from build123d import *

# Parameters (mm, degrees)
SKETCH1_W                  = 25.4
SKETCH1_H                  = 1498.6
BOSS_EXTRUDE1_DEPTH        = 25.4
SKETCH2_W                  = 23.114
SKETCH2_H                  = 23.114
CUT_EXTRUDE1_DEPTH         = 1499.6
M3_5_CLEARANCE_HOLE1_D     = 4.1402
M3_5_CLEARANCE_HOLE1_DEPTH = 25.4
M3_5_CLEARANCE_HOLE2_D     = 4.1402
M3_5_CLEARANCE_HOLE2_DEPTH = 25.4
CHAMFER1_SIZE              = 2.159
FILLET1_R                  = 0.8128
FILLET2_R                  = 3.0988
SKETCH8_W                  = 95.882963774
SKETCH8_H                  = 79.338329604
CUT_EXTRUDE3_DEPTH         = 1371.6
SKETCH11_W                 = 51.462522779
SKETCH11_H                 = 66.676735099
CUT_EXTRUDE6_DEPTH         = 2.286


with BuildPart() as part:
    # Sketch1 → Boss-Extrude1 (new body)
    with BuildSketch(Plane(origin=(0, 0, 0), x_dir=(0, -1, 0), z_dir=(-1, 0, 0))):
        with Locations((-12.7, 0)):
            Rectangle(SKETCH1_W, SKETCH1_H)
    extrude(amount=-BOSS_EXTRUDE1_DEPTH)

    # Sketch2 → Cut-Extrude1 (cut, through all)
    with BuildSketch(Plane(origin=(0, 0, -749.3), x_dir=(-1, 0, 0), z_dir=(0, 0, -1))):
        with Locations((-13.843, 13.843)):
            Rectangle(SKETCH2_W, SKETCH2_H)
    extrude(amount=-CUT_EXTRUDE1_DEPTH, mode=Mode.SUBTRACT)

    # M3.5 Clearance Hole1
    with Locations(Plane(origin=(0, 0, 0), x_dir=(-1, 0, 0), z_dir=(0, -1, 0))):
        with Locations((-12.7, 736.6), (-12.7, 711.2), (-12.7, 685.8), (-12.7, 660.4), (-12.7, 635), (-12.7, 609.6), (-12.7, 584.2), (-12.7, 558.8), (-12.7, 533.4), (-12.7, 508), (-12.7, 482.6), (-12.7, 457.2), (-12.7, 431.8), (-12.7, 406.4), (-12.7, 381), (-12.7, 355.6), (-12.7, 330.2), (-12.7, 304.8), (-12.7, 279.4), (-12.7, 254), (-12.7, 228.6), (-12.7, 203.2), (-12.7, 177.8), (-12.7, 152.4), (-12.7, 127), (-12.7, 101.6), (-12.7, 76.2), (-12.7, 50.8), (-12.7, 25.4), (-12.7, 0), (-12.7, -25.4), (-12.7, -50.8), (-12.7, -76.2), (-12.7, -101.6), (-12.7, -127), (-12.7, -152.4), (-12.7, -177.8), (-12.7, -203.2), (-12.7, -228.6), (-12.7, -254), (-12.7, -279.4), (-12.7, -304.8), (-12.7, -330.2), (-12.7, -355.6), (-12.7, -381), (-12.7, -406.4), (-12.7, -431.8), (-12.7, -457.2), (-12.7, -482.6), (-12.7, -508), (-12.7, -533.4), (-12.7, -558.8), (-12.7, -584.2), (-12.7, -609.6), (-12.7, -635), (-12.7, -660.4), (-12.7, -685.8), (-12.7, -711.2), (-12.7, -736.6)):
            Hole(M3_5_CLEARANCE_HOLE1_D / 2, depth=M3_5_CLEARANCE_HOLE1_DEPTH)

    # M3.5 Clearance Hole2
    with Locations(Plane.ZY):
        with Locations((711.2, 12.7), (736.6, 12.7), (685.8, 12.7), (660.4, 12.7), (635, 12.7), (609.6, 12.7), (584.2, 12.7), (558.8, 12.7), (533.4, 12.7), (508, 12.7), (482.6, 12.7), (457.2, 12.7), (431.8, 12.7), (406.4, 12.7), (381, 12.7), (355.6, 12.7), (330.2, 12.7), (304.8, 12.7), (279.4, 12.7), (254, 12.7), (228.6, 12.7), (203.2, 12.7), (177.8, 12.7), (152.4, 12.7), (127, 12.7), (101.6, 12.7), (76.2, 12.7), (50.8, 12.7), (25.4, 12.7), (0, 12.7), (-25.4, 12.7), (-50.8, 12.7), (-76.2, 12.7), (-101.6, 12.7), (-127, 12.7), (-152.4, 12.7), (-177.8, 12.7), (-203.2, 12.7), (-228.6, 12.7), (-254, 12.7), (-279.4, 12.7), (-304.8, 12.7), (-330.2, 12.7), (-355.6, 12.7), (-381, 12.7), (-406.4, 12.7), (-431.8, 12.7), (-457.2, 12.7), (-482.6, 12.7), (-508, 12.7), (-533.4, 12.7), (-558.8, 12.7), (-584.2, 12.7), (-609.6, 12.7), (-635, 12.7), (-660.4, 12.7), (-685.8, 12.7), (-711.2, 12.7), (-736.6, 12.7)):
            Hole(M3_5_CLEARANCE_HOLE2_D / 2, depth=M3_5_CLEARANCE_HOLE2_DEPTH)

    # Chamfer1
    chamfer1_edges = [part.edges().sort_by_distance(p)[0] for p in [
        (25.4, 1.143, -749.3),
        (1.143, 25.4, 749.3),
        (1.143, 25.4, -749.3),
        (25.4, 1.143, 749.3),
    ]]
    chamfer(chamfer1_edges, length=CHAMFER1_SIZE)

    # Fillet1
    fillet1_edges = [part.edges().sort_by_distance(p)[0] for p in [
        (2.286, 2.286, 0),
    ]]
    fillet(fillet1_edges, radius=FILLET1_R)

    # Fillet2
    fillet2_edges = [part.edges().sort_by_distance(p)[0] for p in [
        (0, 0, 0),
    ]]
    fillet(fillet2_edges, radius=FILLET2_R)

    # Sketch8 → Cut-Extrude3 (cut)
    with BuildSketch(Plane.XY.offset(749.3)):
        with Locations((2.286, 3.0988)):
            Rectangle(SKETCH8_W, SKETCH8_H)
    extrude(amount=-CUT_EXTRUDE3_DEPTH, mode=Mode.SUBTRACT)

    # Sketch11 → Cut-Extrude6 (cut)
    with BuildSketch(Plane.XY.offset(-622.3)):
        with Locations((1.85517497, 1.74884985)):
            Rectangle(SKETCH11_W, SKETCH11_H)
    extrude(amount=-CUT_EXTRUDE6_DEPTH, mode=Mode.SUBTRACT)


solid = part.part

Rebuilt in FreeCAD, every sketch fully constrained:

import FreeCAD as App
import Part
import Sketcher

V = App.Vector
Q = App.Units.Quantity


def edges_at(feature, points):
    """Names of the edges that pass closest to the given points."""
    edges = feature.Shape.Edges
    near = lambda p: min(range(len(edges)), key=lambda i: edges[i].distToShape(Part.Vertex(*p))[0])
    return sorted({f"Edge{near(p) + 1}" for p in points})

doc = App.newDocument("Part")
body = doc.addObject("PartDesign::Body", "Body")

sketch1 = body.newObject("Sketcher::SketchObject", "Sketch")
sketch1.AttachmentSupport = (doc.getObject("YZ_Plane"), [""])
sketch1.MapMode = "FlatFace"
sketch1.addGeometry(Part.LineSegment(V(25.4, 749.3, 0), V(25.4, -749.3, 0)), False)
sketch1.addGeometry(Part.LineSegment(V(25.4, -749.3, 0), V(0, -749.3, 0)), False)
sketch1.addGeometry(Part.LineSegment(V(0, -749.3, 0), V(0, 749.3, 0)), False)
sketch1.addGeometry(Part.LineSegment(V(0, 749.3, 0), V(25.4, 749.3, 0)), False)
sketch1.addConstraint(Sketcher.Constraint("Coincident", 0, 2, 1, 1))
sketch1.addConstraint(Sketcher.Constraint("Coincident", 1, 2, 2, 1))
sketch1.addConstraint(Sketcher.Constraint("Coincident", 2, 2, 3, 1))
sketch1.addConstraint(Sketcher.Constraint("Coincident", 3, 2, 0, 1))
sketch1.addConstraint(Sketcher.Constraint("Vertical", 0))
sketch1.addConstraint(Sketcher.Constraint("Horizontal", 1))
sketch1.addConstraint(Sketcher.Constraint("Vertical", 2))
sketch1.addConstraint(Sketcher.Constraint("Horizontal", 3))
sketch1.addConstraint(Sketcher.Constraint("Symmetric", 1, 2, 2, 2, -1, 1))
sketch1.addConstraint(Sketcher.Constraint("DistanceX", 1, 2, 1, 1, Q("1 in")))
sketch1.addConstraint(Sketcher.Constraint("DistanceY", 0, 2, 0, 1, Q("59 in")))
pad1 = body.newObject("PartDesign::Pad", "Pad")
pad1.Profile = sketch1
pad1.Length = Q("1 in")

sketch2 = body.newObject("Sketcher::SketchObject", "Sketch001")
sketch2.AttachmentSupport = (doc.getObject("XY_Plane"), [""])
sketch2.MapMode = "FlatFace"
sketch2.AttachmentOffset = App.Placement(V(0, 0, -29.5 * 25.4), App.Rotation())
sketch2.addGeometry(Part.LineSegment(V(25.4, 25.4, 0), V(25.4, 2.286, 0)), False)
sketch2.addGeometry(Part.LineSegment(V(25.4, 2.286, 0), V(2.286, 2.286, 0)), False)
sketch2.addGeometry(Part.LineSegment(V(2.286, 2.286, 0), V(2.286, 25.4, 0)), False)
sketch2.addGeometry(Part.LineSegment(V(2.286, 25.4, 0), V(25.4, 25.4, 0)), False)
sketch2.addConstraint(Sketcher.Constraint("Coincident", 0, 2, 1, 1))
sketch2.addConstraint(Sketcher.Constraint("Coincident", 1, 2, 2, 1))
sketch2.addConstraint(Sketcher.Constraint("Coincident", 2, 2, 3, 1))
sketch2.addConstraint(Sketcher.Constraint("Coincident", 3, 2, 0, 1))
sketch2.addConstraint(Sketcher.Constraint("Vertical", 0))
sketch2.addConstraint(Sketcher.Constraint("Horizontal", 1))
sketch2.addConstraint(Sketcher.Constraint("Vertical", 2))
sketch2.addConstraint(Sketcher.Constraint("Horizontal", 3))
sketch2.addConstraint(Sketcher.Constraint("Equal", 3, 0))
sketch2.addConstraint(Sketcher.Constraint("DistanceX", -1, 1, 0, 2, Q("1 in")))
sketch2.addConstraint(Sketcher.Constraint("DistanceY", -1, 1, 2, 2, Q("1 in")))
sketch2.addConstraint(Sketcher.Constraint("DistanceX", 1, 2, 1, 1, Q("0.91 in")))
pocket1 = body.newObject("PartDesign::Pocket", "Pocket")
pocket1.Profile = sketch2
pocket1.Type = "ThroughAll"
pocket1.Reversed = True

sketch3 = body.newObject("Sketcher::SketchObject", "Sketch002")
sketch3.AttachmentSupport = (doc.getObject("XZ_Plane"), [""])
sketch3.MapMode = "FlatFace"
sketch3.addGeometry(Part.Circle(V(12.7, -736.6, 0), V(0, 0, 1), 2.0701), False)
sketch3.addGeometry(Part.Circle(V(12.7, -711.2, 0), V(0, 0, 1), 2.0701), False)
sketch3.addGeometry(Part.Circle(V(12.7, -685.8, 0), V(0, 0, 1), 2.0701), False)
sketch3.addGeometry(Part.Circle(V(12.7, -660.4, 0), V(0, 0, 1), 2.0701), False)
sketch3.addGeometry(Part.Circle(V(12.7, -635, 0), V(0, 0, 1), 2.0701), False)
sketch3.addGeometry(Part.Circle(V(12.7, -609.6, 0), V(0, 0, 1), 2.0701), False)
sketch3.addGeometry(Part.Circle(V(12.7, -584.2, 0), V(0, 0, 1), 2.0701), False)
sketch3.addGeometry(Part.Circle(V(12.7, -558.8, 0), V(0, 0, 1), 2.0701), False)
sketch3.addGeometry(Part.Circle(V(12.7, -533.4, 0), V(0, 0, 1), 2.0701), False)
sketch3.addGeometry(Part.Circle(V(12.7, -508, 0), V(0, 0, 1), 2.0701), False)
sketch3.addGeometry(Part.Circle(V(12.7, -482.6, 0), V(0, 0, 1), 2.0701), False)
sketch3.addGeometry(Part.Circle(V(12.7, -457.2, 0), V(0, 0, 1), 2.0701), False)
sketch3.addGeometry(Part.Circle(V(12.7, -431.8, 0), V(0, 0, 1), 2.0701), False)
sketch3.addGeometry(Part.Circle(V(12.7, -406.4, 0), V(0, 0, 1), 2.0701), False)
sketch3.addGeometry(Part.Circle(V(12.7, -381, 0), V(0, 0, 1), 2.0701), False)
sketch3.addGeometry(Part.Circle(V(12.7, -355.6, 0), V(0, 0, 1), 2.0701), False)
sketch3.addGeometry(Part.Circle(V(12.7, -330.2, 0), V(0, 0, 1), 2.0701), False)
sketch3.addGeometry(Part.Circle(V(12.7, -304.8, 0), V(0, 0, 1), 2.0701), False)
sketch3.addGeometry(Part.Circle(V(12.7, -279.4, 0), V(0, 0, 1), 2.0701), False)
sketch3.addGeometry(Part.Circle(V(12.7, -254, 0), V(0, 0, 1), 2.0701), False)
sketch3.addGeometry(Part.Circle(V(12.7, -228.6, 0), V(0, 0, 1), 2.0701), False)
sketch3.addGeometry(Part.Circle(V(12.7, -203.2, 0), V(0, 0, 1), 2.0701), False)
sketch3.addGeometry(Part.Circle(V(12.7, -177.8, 0), V(0, 0, 1), 2.0701), False)
sketch3.addGeometry(Part.Circle(V(12.7, -152.4, 0), V(0, 0, 1), 2.0701), False)
sketch3.addGeometry(Part.Circle(V(12.7, -127, 0), V(0, 0, 1), 2.0701), False)
sketch3.addGeometry(Part.Circle(V(12.7, -101.6, 0), V(0, 0, 1), 2.0701), False)
sketch3.addGeometry(Part.Circle(V(12.7, -76.2, 0), V(0, 0, 1), 2.0701), False)
sketch3.addGeometry(Part.Circle(V(12.7, -50.8, 0), V(0, 0, 1), 2.0701), False)
sketch3.addGeometry(Part.Circle(V(12.7, -25.4, 0), V(0, 0, 1), 2.0701), False)
sketch3.addGeometry(Part.Circle(V(12.7, 0, 0), V(0, 0, 1), 2.0701), False)
sketch3.addGeometry(Part.Circle(V(12.7, 25.4, 0), V(0, 0, 1), 2.0701), False)
sketch3.addGeometry(Part.Circle(V(12.7, 50.8, 0), V(0, 0, 1), 2.0701), False)
sketch3.addGeometry(Part.Circle(V(12.7, 76.2, 0), V(0, 0, 1), 2.0701), False)
sketch3.addGeometry(Part.Circle(V(12.7, 101.6, 0), V(0, 0, 1), 2.0701), False)
sketch3.addGeometry(Part.Circle(V(12.7, 127, 0), V(0, 0, 1), 2.0701), False)
sketch3.addGeometry(Part.Circle(V(12.7, 152.4, 0), V(0, 0, 1), 2.0701), False)
sketch3.addGeometry(Part.Circle(V(12.7, 177.8, 0), V(0, 0, 1), 2.0701), False)
sketch3.addGeometry(Part.Circle(V(12.7, 203.2, 0), V(0, 0, 1), 2.0701), False)
sketch3.addGeometry(Part.Circle(V(12.7, 228.6, 0), V(0, 0, 1), 2.0701), False)
sketch3.addGeometry(Part.Circle(V(12.7, 254, 0), V(0, 0, 1), 2.0701), False)
sketch3.addGeometry(Part.Circle(V(12.7, 279.4, 0), V(0, 0, 1), 2.0701), False)
sketch3.addGeometry(Part.Circle(V(12.7, 304.8, 0), V(0, 0, 1), 2.0701), False)
sketch3.addGeometry(Part.Circle(V(12.7, 330.2, 0), V(0, 0, 1), 2.0701), False)
sketch3.addGeometry(Part.Circle(V(12.7, 355.6, 0), V(0, 0, 1), 2.0701), False)
sketch3.addGeometry(Part.Circle(V(12.7, 381, 0), V(0, 0, 1), 2.0701), False)
sketch3.addGeometry(Part.Circle(V(12.7, 406.4, 0), V(0, 0, 1), 2.0701), False)
sketch3.addGeometry(Part.Circle(V(12.7, 431.8, 0), V(0, 0, 1), 2.0701), False)
sketch3.addGeometry(Part.Circle(V(12.7, 457.2, 0), V(0, 0, 1), 2.0701), False)
sketch3.addGeometry(Part.Circle(V(12.7, 482.6, 0), V(0, 0, 1), 2.0701), False)
sketch3.addGeometry(Part.Circle(V(12.7, 508, 0), V(0, 0, 1), 2.0701), False)
sketch3.addGeometry(Part.Circle(V(12.7, 533.4, 0), V(0, 0, 1), 2.0701), False)
sketch3.addGeometry(Part.Circle(V(12.7, 558.8, 0), V(0, 0, 1), 2.0701), False)
sketch3.addGeometry(Part.Circle(V(12.7, 584.2, 0), V(0, 0, 1), 2.0701), False)
sketch3.addGeometry(Part.Circle(V(12.7, 609.6, 0), V(0, 0, 1), 2.0701), False)
sketch3.addGeometry(Part.Circle(V(12.7, 635, 0), V(0, 0, 1), 2.0701), False)
sketch3.addGeometry(Part.Circle(V(12.7, 660.4, 0), V(0, 0, 1), 2.0701), False)
sketch3.addGeometry(Part.Circle(V(12.7, 685.8, 0), V(0, 0, 1), 2.0701), False)
sketch3.addGeometry(Part.Circle(V(12.7, 711.2, 0), V(0, 0, 1), 2.0701), False)
sketch3.addGeometry(Part.Circle(V(12.7, 736.6, 0), V(0, 0, 1), 2.0701), False)
sketch3.addConstraint(Sketcher.Constraint("Equal", 0, 1))
sketch3.addConstraint(Sketcher.Constraint("Equal", 1, 2))
sketch3.addConstraint(Sketcher.Constraint("Equal", 2, 3))
sketch3.addConstraint(Sketcher.Constraint("Equal", 3, 4))
sketch3.addConstraint(Sketcher.Constraint("Equal", 4, 5))
sketch3.addConstraint(Sketcher.Constraint("Equal", 5, 6))
sketch3.addConstraint(Sketcher.Constraint("Equal", 6, 7))
sketch3.addConstraint(Sketcher.Constraint("Equal", 7, 8))
sketch3.addConstraint(Sketcher.Constraint("Equal", 8, 9))
sketch3.addConstraint(Sketcher.Constraint("Equal", 9, 10))
sketch3.addConstraint(Sketcher.Constraint("Equal", 10, 11))
sketch3.addConstraint(Sketcher.Constraint("Equal", 11, 12))
sketch3.addConstraint(Sketcher.Constraint("Equal", 12, 13))
sketch3.addConstraint(Sketcher.Constraint("Equal", 13, 14))
sketch3.addConstraint(Sketcher.Constraint("Equal", 14, 15))
sketch3.addConstraint(Sketcher.Constraint("Equal", 15, 16))
sketch3.addConstraint(Sketcher.Constraint("Equal", 16, 17))
sketch3.addConstraint(Sketcher.Constraint("Equal", 17, 18))
sketch3.addConstraint(Sketcher.Constraint("Equal", 18, 19))
sketch3.addConstraint(Sketcher.Constraint("Equal", 19, 20))
sketch3.addConstraint(Sketcher.Constraint("Equal", 20, 21))
sketch3.addConstraint(Sketcher.Constraint("Equal", 21, 22))
sketch3.addConstraint(Sketcher.Constraint("Equal", 22, 23))
sketch3.addConstraint(Sketcher.Constraint("Equal", 23, 24))
sketch3.addConstraint(Sketcher.Constraint("Equal", 24, 25))
sketch3.addConstraint(Sketcher.Constraint("Equal", 25, 26))
sketch3.addConstraint(Sketcher.Constraint("Equal", 26, 27))
sketch3.addConstraint(Sketcher.Constraint("Equal", 27, 28))
sketch3.addConstraint(Sketcher.Constraint("Equal", 28, 29))
sketch3.addConstraint(Sketcher.Constraint("Equal", 29, 30))
sketch3.addConstraint(Sketcher.Constraint("Equal", 30, 31))
sketch3.addConstraint(Sketcher.Constraint("Equal", 31, 32))
sketch3.addConstraint(Sketcher.Constraint("Equal", 32, 33))
sketch3.addConstraint(Sketcher.Constraint("Equal", 33, 34))
sketch3.addConstraint(Sketcher.Constraint("Equal", 34, 35))
sketch3.addConstraint(Sketcher.Constraint("Equal", 35, 36))
sketch3.addConstraint(Sketcher.Constraint("Equal", 36, 37))
sketch3.addConstraint(Sketcher.Constraint("Equal", 37, 38))
sketch3.addConstraint(Sketcher.Constraint("Equal", 38, 39))
sketch3.addConstraint(Sketcher.Constraint("Equal", 39, 40))
sketch3.addConstraint(Sketcher.Constraint("Equal", 40, 41))
sketch3.addConstraint(Sketcher.Constraint("Equal", 41, 42))
sketch3.addConstraint(Sketcher.Constraint("Equal", 42, 43))
sketch3.addConstraint(Sketcher.Constraint("Equal", 43, 44))
sketch3.addConstraint(Sketcher.Constraint("Equal", 44, 45))
sketch3.addConstraint(Sketcher.Constraint("Equal", 45, 46))
sketch3.addConstraint(Sketcher.Constraint("Equal", 46, 47))
sketch3.addConstraint(Sketcher.Constraint("Equal", 47, 48))
sketch3.addConstraint(Sketcher.Constraint("Equal", 48, 49))
sketch3.addConstraint(Sketcher.Constraint("Equal", 49, 50))
sketch3.addConstraint(Sketcher.Constraint("Equal", 50, 51))
sketch3.addConstraint(Sketcher.Constraint("Equal", 51, 52))
sketch3.addConstraint(Sketcher.Constraint("Equal", 52, 53))
sketch3.addConstraint(Sketcher.Constraint("Equal", 53, 54))
sketch3.addConstraint(Sketcher.Constraint("Equal", 54, 55))
sketch3.addConstraint(Sketcher.Constraint("Equal", 55, 56))
sketch3.addConstraint(Sketcher.Constraint("Equal", 56, 57))
sketch3.addConstraint(Sketcher.Constraint("Equal", 57, 58))
sketch3.addConstraint(Sketcher.Constraint("Symmetric", 28, 3, 30, 3, -1))
sketch3.addConstraint(Sketcher.Constraint("Symmetric", 27, 3, 31, 3, -1))
sketch3.addConstraint(Sketcher.Constraint("Symmetric", 26, 3, 32, 3, -1))
sketch3.addConstraint(Sketcher.Constraint("Symmetric", 25, 3, 33, 3, -1))
sketch3.addConstraint(Sketcher.Constraint("Symmetric", 24, 3, 34, 3, -1))
sketch3.addConstraint(Sketcher.Constraint("Symmetric", 23, 3, 35, 3, -1))
sketch3.addConstraint(Sketcher.Constraint("Symmetric", 22, 3, 36, 3, -1))
sketch3.addConstraint(Sketcher.Constraint("Symmetric", 21, 3, 37, 3, -1))
sketch3.addConstraint(Sketcher.Constraint("Symmetric", 20, 3, 38, 3, -1))
sketch3.addConstraint(Sketcher.Constraint("Symmetric", 19, 3, 39, 3, -1))
sketch3.addConstraint(Sketcher.Constraint("Symmetric", 18, 3, 40, 3, -1))
sketch3.addConstraint(Sketcher.Constraint("Symmetric", 17, 3, 41, 3, -1))
sketch3.addConstraint(Sketcher.Constraint("Symmetric", 16, 3, 42, 3, -1))
sketch3.addConstraint(Sketcher.Constraint("Symmetric", 15, 3, 43, 3, -1))
sketch3.addConstraint(Sketcher.Constraint("Symmetric", 14, 3, 44, 3, -1))
sketch3.addConstraint(Sketcher.Constraint("Symmetric", 13, 3, 45, 3, -1))
sketch3.addConstraint(Sketcher.Constraint("Symmetric", 12, 3, 46, 3, -1))
sketch3.addConstraint(Sketcher.Constraint("Symmetric", 11, 3, 47, 3, -1))
sketch3.addConstraint(Sketcher.Constraint("Symmetric", 10, 3, 48, 3, -1))
sketch3.addConstraint(Sketcher.Constraint("Symmetric", 9, 3, 49, 3, -1))
sketch3.addConstraint(Sketcher.Constraint("Symmetric", 8, 3, 50, 3, -1))
sketch3.addConstraint(Sketcher.Constraint("Symmetric", 7, 3, 51, 3, -1))
sketch3.addConstraint(Sketcher.Constraint("Symmetric", 6, 3, 52, 3, -1))
sketch3.addConstraint(Sketcher.Constraint("Symmetric", 5, 3, 53, 3, -1))
sketch3.addConstraint(Sketcher.Constraint("Symmetric", 4, 3, 54, 3, -1))
sketch3.addConstraint(Sketcher.Constraint("Symmetric", 3, 3, 55, 3, -1))
sketch3.addConstraint(Sketcher.Constraint("Symmetric", 2, 3, 56, 3, -1))
sketch3.addConstraint(Sketcher.Constraint("Symmetric", 1, 3, 57, 3, -1))
sketch3.addConstraint(Sketcher.Constraint("Symmetric", 0, 3, 58, 3, -1))
sketch3.addConstraint(Sketcher.Constraint("PointOnObject", 29, 3, -1))
sketch3.addConstraint(Sketcher.Constraint("Vertical", 0, 3, 1, 3))
sketch3.addConstraint(Sketcher.Constraint("Vertical", 1, 3, 2, 3))
sketch3.addConstraint(Sketcher.Constraint("Vertical", 2, 3, 3, 3))
sketch3.addConstraint(Sketcher.Constraint("Vertical", 3, 3, 4, 3))
sketch3.addConstraint(Sketcher.Constraint("Vertical", 4, 3, 5, 3))
sketch3.addConstraint(Sketcher.Constraint("Vertical", 5, 3, 6, 3))
sketch3.addConstraint(Sketcher.Constraint("Vertical", 6, 3, 7, 3))
sketch3.addConstraint(Sketcher.Constraint("Vertical", 7, 3, 8, 3))
sketch3.addConstraint(Sketcher.Constraint("Vertical", 8, 3, 9, 3))
sketch3.addConstraint(Sketcher.Constraint("Vertical", 9, 3, 10, 3))
sketch3.addConstraint(Sketcher.Constraint("Vertical", 10, 3, 11, 3))
sketch3.addConstraint(Sketcher.Constraint("Vertical", 11, 3, 12, 3))
sketch3.addConstraint(Sketcher.Constraint("Vertical", 12, 3, 13, 3))
sketch3.addConstraint(Sketcher.Constraint("Vertical", 13, 3, 14, 3))
sketch3.addConstraint(Sketcher.Constraint("Vertical", 14, 3, 15, 3))
sketch3.addConstraint(Sketcher.Constraint("Vertical", 15, 3, 16, 3))
sketch3.addConstraint(Sketcher.Constraint("Vertical", 16, 3, 17, 3))
sketch3.addConstraint(Sketcher.Constraint("Vertical", 17, 3, 18, 3))
sketch3.addConstraint(Sketcher.Constraint("Vertical", 18, 3, 19, 3))
sketch3.addConstraint(Sketcher.Constraint("Vertical", 19, 3, 20, 3))
sketch3.addConstraint(Sketcher.Constraint("Vertical", 20, 3, 21, 3))
sketch3.addConstraint(Sketcher.Constraint("Vertical", 21, 3, 22, 3))
sketch3.addConstraint(Sketcher.Constraint("Vertical", 22, 3, 23, 3))
sketch3.addConstraint(Sketcher.Constraint("Vertical", 23, 3, 24, 3))
sketch3.addConstraint(Sketcher.Constraint("Vertical", 24, 3, 25, 3))
sketch3.addConstraint(Sketcher.Constraint("Vertical", 25, 3, 26, 3))
sketch3.addConstraint(Sketcher.Constraint("Vertical", 26, 3, 27, 3))
sketch3.addConstraint(Sketcher.Constraint("Vertical", 27, 3, 28, 3))
sketch3.addConstraint(Sketcher.Constraint("Vertical", 28, 3, 29, 3))
sketch3.addConstraint(Sketcher.Constraint("Diameter", 0, Q("0.163 in")))
sketch3.addConstraint(Sketcher.Constraint("DistanceY", 0, 3, -1, 1, Q("29 in")))
sketch3.addConstraint(Sketcher.Constraint("DistanceY", 1, 3, -1, 1, Q("28 in")))
sketch3.addConstraint(Sketcher.Constraint("DistanceY", 2, 3, -1, 1, Q("27 in")))
sketch3.addConstraint(Sketcher.Constraint("DistanceY", 3, 3, -1, 1, Q("26 in")))
sketch3.addConstraint(Sketcher.Constraint("DistanceY", 4, 3, -1, 1, Q("25 in")))
sketch3.addConstraint(Sketcher.Constraint("DistanceY", 5, 3, -1, 1, Q("24 in")))
sketch3.addConstraint(Sketcher.Constraint("DistanceY", 6, 3, -1, 1, Q("23 in")))
sketch3.addConstraint(Sketcher.Constraint("DistanceY", 7, 3, -1, 1, Q("22 in")))
sketch3.addConstraint(Sketcher.Constraint("DistanceY", 8, 3, -1, 1, Q("21 in")))
sketch3.addConstraint(Sketcher.Constraint("DistanceY", 9, 3, -1, 1, Q("20 in")))
sketch3.addConstraint(Sketcher.Constraint("DistanceY", 10, 3, -1, 1, Q("19 in")))
sketch3.addConstraint(Sketcher.Constraint("DistanceY", 11, 3, -1, 1, Q("18 in")))
sketch3.addConstraint(Sketcher.Constraint("DistanceY", 12, 3, -1, 1, Q("17 in")))
sketch3.addConstraint(Sketcher.Constraint("DistanceY", 13, 3, -1, 1, Q("16 in")))
sketch3.addConstraint(Sketcher.Constraint("DistanceY", 14, 3, -1, 1, Q("15 in")))
sketch3.addConstraint(Sketcher.Constraint("DistanceY", 15, 3, -1, 1, Q("14 in")))
sketch3.addConstraint(Sketcher.Constraint("DistanceY", 16, 3, -1, 1, Q("13 in")))
sketch3.addConstraint(Sketcher.Constraint("DistanceY", 17, 3, -1, 1, Q("12 in")))
sketch3.addConstraint(Sketcher.Constraint("DistanceY", 18, 3, -1, 1, Q("11 in")))
sketch3.addConstraint(Sketcher.Constraint("DistanceY", 19, 3, -1, 1, Q("10 in")))
sketch3.addConstraint(Sketcher.Constraint("DistanceY", 20, 3, -1, 1, Q("9 in")))
sketch3.addConstraint(Sketcher.Constraint("DistanceY", 21, 3, -1, 1, Q("8 in")))
sketch3.addConstraint(Sketcher.Constraint("DistanceY", 22, 3, -1, 1, Q("7 in")))
sketch3.addConstraint(Sketcher.Constraint("DistanceY", 23, 3, -1, 1, Q("6 in")))
sketch3.addConstraint(Sketcher.Constraint("DistanceY", 24, 3, -1, 1, Q("5 in")))
sketch3.addConstraint(Sketcher.Constraint("DistanceY", 25, 3, -1, 1, Q("4 in")))
sketch3.addConstraint(Sketcher.Constraint("DistanceY", 26, 3, -1, 1, Q("3 in")))
sketch3.addConstraint(Sketcher.Constraint("DistanceY", 27, 3, -1, 1, Q("2 in")))
sketch3.addConstraint(Sketcher.Constraint("DistanceY", 28, 3, -1, 1, Q("1 in")))
sketch3.addConstraint(Sketcher.Constraint("DistanceX", -1, 1, 0, 3, Q("0.5 in")))
doc.recompute()
hole = body.newObject("PartDesign::Hole", "Hole")
hole.Profile = sketch3
hole.ThreadType = "None"
hole.Diameter = Q("0.163 in")
hole.DepthType = "Dimension"
hole.Depth = Q("1 in")
hole.DrillPoint = "Flat"

sketch4 = body.newObject("Sketcher::SketchObject", "Sketch003")
sketch4.AttachmentSupport = (doc.getObject("YZ_Plane"), [""])
sketch4.MapMode = "FlatFace"
sketch4.addGeometry(Part.Circle(V(12.7, 711.2, 0), V(0, 0, 1), 2.0701), False)
sketch4.addGeometry(Part.Circle(V(12.7, 736.6, 0), V(0, 0, 1), 2.0701), False)
sketch4.addGeometry(Part.Circle(V(12.7, 685.8, 0), V(0, 0, 1), 2.0701), False)
sketch4.addGeometry(Part.Circle(V(12.7, 660.4, 0), V(0, 0, 1), 2.0701), False)
sketch4.addGeometry(Part.Circle(V(12.7, 635, 0), V(0, 0, 1), 2.0701), False)
sketch4.addGeometry(Part.Circle(V(12.7, 609.6, 0), V(0, 0, 1), 2.0701), False)
sketch4.addGeometry(Part.Circle(V(12.7, 584.2, 0), V(0, 0, 1), 2.0701), False)
sketch4.addGeometry(Part.Circle(V(12.7, 558.8, 0), V(0, 0, 1), 2.0701), False)
sketch4.addGeometry(Part.Circle(V(12.7, 533.4, 0), V(0, 0, 1), 2.0701), False)
sketch4.addGeometry(Part.Circle(V(12.7, 508, 0), V(0, 0, 1), 2.0701), False)
sketch4.addGeometry(Part.Circle(V(12.7, 482.6, 0), V(0, 0, 1), 2.0701), False)
sketch4.addGeometry(Part.Circle(V(12.7, 457.2, 0), V(0, 0, 1), 2.0701), False)
sketch4.addGeometry(Part.Circle(V(12.7, 431.8, 0), V(0, 0, 1), 2.0701), False)
sketch4.addGeometry(Part.Circle(V(12.7, 406.4, 0), V(0, 0, 1), 2.0701), False)
sketch4.addGeometry(Part.Circle(V(12.7, 381, 0), V(0, 0, 1), 2.0701), False)
sketch4.addGeometry(Part.Circle(V(12.7, 355.6, 0), V(0, 0, 1), 2.0701), False)
sketch4.addGeometry(Part.Circle(V(12.7, 330.2, 0), V(0, 0, 1), 2.0701), False)
sketch4.addGeometry(Part.Circle(V(12.7, 304.8, 0), V(0, 0, 1), 2.0701), False)
sketch4.addGeometry(Part.Circle(V(12.7, 279.4, 0), V(0, 0, 1), 2.0701), False)
sketch4.addGeometry(Part.Circle(V(12.7, 254, 0), V(0, 0, 1), 2.0701), False)
sketch4.addGeometry(Part.Circle(V(12.7, 228.6, 0), V(0, 0, 1), 2.0701), False)
sketch4.addGeometry(Part.Circle(V(12.7, 203.2, 0), V(0, 0, 1), 2.0701), False)
sketch4.addGeometry(Part.Circle(V(12.7, 177.8, 0), V(0, 0, 1), 2.0701), False)
sketch4.addGeometry(Part.Circle(V(12.7, 152.4, 0), V(0, 0, 1), 2.0701), False)
sketch4.addGeometry(Part.Circle(V(12.7, 127, 0), V(0, 0, 1), 2.0701), False)
sketch4.addGeometry(Part.Circle(V(12.7, 101.6, 0), V(0, 0, 1), 2.0701), False)
sketch4.addGeometry(Part.Circle(V(12.7, 76.2, 0), V(0, 0, 1), 2.0701), False)
sketch4.addGeometry(Part.Circle(V(12.7, 50.8, 0), V(0, 0, 1), 2.0701), False)
sketch4.addGeometry(Part.Circle(V(12.7, 25.4, 0), V(0, 0, 1), 2.0701), False)
sketch4.addGeometry(Part.Circle(V(12.7, 0, 0), V(0, 0, 1), 2.0701), False)
sketch4.addGeometry(Part.Circle(V(12.7, -25.4, 0), V(0, 0, 1), 2.0701), False)
sketch4.addGeometry(Part.Circle(V(12.7, -50.8, 0), V(0, 0, 1), 2.0701), False)
sketch4.addGeometry(Part.Circle(V(12.7, -76.2, 0), V(0, 0, 1), 2.0701), False)
sketch4.addGeometry(Part.Circle(V(12.7, -101.6, 0), V(0, 0, 1), 2.0701), False)
sketch4.addGeometry(Part.Circle(V(12.7, -127, 0), V(0, 0, 1), 2.0701), False)
sketch4.addGeometry(Part.Circle(V(12.7, -152.4, 0), V(0, 0, 1), 2.0701), False)
sketch4.addGeometry(Part.Circle(V(12.7, -177.8, 0), V(0, 0, 1), 2.0701), False)
sketch4.addGeometry(Part.Circle(V(12.7, -203.2, 0), V(0, 0, 1), 2.0701), False)
sketch4.addGeometry(Part.Circle(V(12.7, -228.6, 0), V(0, 0, 1), 2.0701), False)
sketch4.addGeometry(Part.Circle(V(12.7, -254, 0), V(0, 0, 1), 2.0701), False)
sketch4.addGeometry(Part.Circle(V(12.7, -279.4, 0), V(0, 0, 1), 2.0701), False)
sketch4.addGeometry(Part.Circle(V(12.7, -304.8, 0), V(0, 0, 1), 2.0701), False)
sketch4.addGeometry(Part.Circle(V(12.7, -330.2, 0), V(0, 0, 1), 2.0701), False)
sketch4.addGeometry(Part.Circle(V(12.7, -355.6, 0), V(0, 0, 1), 2.0701), False)
sketch4.addGeometry(Part.Circle(V(12.7, -381, 0), V(0, 0, 1), 2.0701), False)
sketch4.addGeometry(Part.Circle(V(12.7, -406.4, 0), V(0, 0, 1), 2.0701), False)
sketch4.addGeometry(Part.Circle(V(12.7, -431.8, 0), V(0, 0, 1), 2.0701), False)
sketch4.addGeometry(Part.Circle(V(12.7, -457.2, 0), V(0, 0, 1), 2.0701), False)
sketch4.addGeometry(Part.Circle(V(12.7, -482.6, 0), V(0, 0, 1), 2.0701), False)
sketch4.addGeometry(Part.Circle(V(12.7, -508, 0), V(0, 0, 1), 2.0701), False)
sketch4.addGeometry(Part.Circle(V(12.7, -533.4, 0), V(0, 0, 1), 2.0701), False)
sketch4.addGeometry(Part.Circle(V(12.7, -558.8, 0), V(0, 0, 1), 2.0701), False)
sketch4.addGeometry(Part.Circle(V(12.7, -584.2, 0), V(0, 0, 1), 2.0701), False)
sketch4.addGeometry(Part.Circle(V(12.7, -609.6, 0), V(0, 0, 1), 2.0701), False)
sketch4.addGeometry(Part.Circle(V(12.7, -635, 0), V(0, 0, 1), 2.0701), False)
sketch4.addGeometry(Part.Circle(V(12.7, -660.4, 0), V(0, 0, 1), 2.0701), False)
sketch4.addGeometry(Part.Circle(V(12.7, -685.8, 0), V(0, 0, 1), 2.0701), False)
sketch4.addGeometry(Part.Circle(V(12.7, -711.2, 0), V(0, 0, 1), 2.0701), False)
sketch4.addGeometry(Part.Circle(V(12.7, -736.6, 0), V(0, 0, 1), 2.0701), False)
sketch4.addConstraint(Sketcher.Constraint("Equal", 0, 1))
sketch4.addConstraint(Sketcher.Constraint("Equal", 1, 2))
sketch4.addConstraint(Sketcher.Constraint("Equal", 2, 3))
sketch4.addConstraint(Sketcher.Constraint("Equal", 3, 4))
sketch4.addConstraint(Sketcher.Constraint("Equal", 4, 5))
sketch4.addConstraint(Sketcher.Constraint("Equal", 5, 6))
sketch4.addConstraint(Sketcher.Constraint("Equal", 6, 7))
sketch4.addConstraint(Sketcher.Constraint("Equal", 7, 8))
sketch4.addConstraint(Sketcher.Constraint("Equal", 8, 9))
sketch4.addConstraint(Sketcher.Constraint("Equal", 9, 10))
sketch4.addConstraint(Sketcher.Constraint("Equal", 10, 11))
sketch4.addConstraint(Sketcher.Constraint("Equal", 11, 12))
sketch4.addConstraint(Sketcher.Constraint("Equal", 12, 13))
sketch4.addConstraint(Sketcher.Constraint("Equal", 13, 14))
sketch4.addConstraint(Sketcher.Constraint("Equal", 14, 15))
sketch4.addConstraint(Sketcher.Constraint("Equal", 15, 16))
sketch4.addConstraint(Sketcher.Constraint("Equal", 16, 17))
sketch4.addConstraint(Sketcher.Constraint("Equal", 17, 18))
sketch4.addConstraint(Sketcher.Constraint("Equal", 18, 19))
sketch4.addConstraint(Sketcher.Constraint("Equal", 19, 20))
sketch4.addConstraint(Sketcher.Constraint("Equal", 20, 21))
sketch4.addConstraint(Sketcher.Constraint("Equal", 21, 22))
sketch4.addConstraint(Sketcher.Constraint("Equal", 22, 23))
sketch4.addConstraint(Sketcher.Constraint("Equal", 23, 24))
sketch4.addConstraint(Sketcher.Constraint("Equal", 24, 25))
sketch4.addConstraint(Sketcher.Constraint("Equal", 25, 26))
sketch4.addConstraint(Sketcher.Constraint("Equal", 26, 27))
sketch4.addConstraint(Sketcher.Constraint("Equal", 27, 28))
sketch4.addConstraint(Sketcher.Constraint("Equal", 28, 29))
sketch4.addConstraint(Sketcher.Constraint("Equal", 29, 30))
sketch4.addConstraint(Sketcher.Constraint("Equal", 30, 31))
sketch4.addConstraint(Sketcher.Constraint("Equal", 31, 32))
sketch4.addConstraint(Sketcher.Constraint("Equal", 32, 33))
sketch4.addConstraint(Sketcher.Constraint("Equal", 33, 34))
sketch4.addConstraint(Sketcher.Constraint("Equal", 34, 35))
sketch4.addConstraint(Sketcher.Constraint("Equal", 35, 36))
sketch4.addConstraint(Sketcher.Constraint("Equal", 36, 37))
sketch4.addConstraint(Sketcher.Constraint("Equal", 37, 38))
sketch4.addConstraint(Sketcher.Constraint("Equal", 38, 39))
sketch4.addConstraint(Sketcher.Constraint("Equal", 39, 40))
sketch4.addConstraint(Sketcher.Constraint("Equal", 40, 41))
sketch4.addConstraint(Sketcher.Constraint("Equal", 41, 42))
sketch4.addConstraint(Sketcher.Constraint("Equal", 42, 43))
sketch4.addConstraint(Sketcher.Constraint("Equal", 43, 44))
sketch4.addConstraint(Sketcher.Constraint("Equal", 44, 45))
sketch4.addConstraint(Sketcher.Constraint("Equal", 45, 46))
sketch4.addConstraint(Sketcher.Constraint("Equal", 46, 47))
sketch4.addConstraint(Sketcher.Constraint("Equal", 47, 48))
sketch4.addConstraint(Sketcher.Constraint("Equal", 48, 49))
sketch4.addConstraint(Sketcher.Constraint("Equal", 49, 50))
sketch4.addConstraint(Sketcher.Constraint("Equal", 50, 51))
sketch4.addConstraint(Sketcher.Constraint("Equal", 51, 52))
sketch4.addConstraint(Sketcher.Constraint("Equal", 52, 53))
sketch4.addConstraint(Sketcher.Constraint("Equal", 53, 54))
sketch4.addConstraint(Sketcher.Constraint("Equal", 54, 55))
sketch4.addConstraint(Sketcher.Constraint("Equal", 55, 56))
sketch4.addConstraint(Sketcher.Constraint("Equal", 56, 57))
sketch4.addConstraint(Sketcher.Constraint("Equal", 57, 58))
sketch4.addConstraint(Sketcher.Constraint("Symmetric", 28, 3, 30, 3, -1))
sketch4.addConstraint(Sketcher.Constraint("Symmetric", 27, 3, 31, 3, -1))
sketch4.addConstraint(Sketcher.Constraint("Symmetric", 26, 3, 32, 3, -1))
sketch4.addConstraint(Sketcher.Constraint("Symmetric", 25, 3, 33, 3, -1))
sketch4.addConstraint(Sketcher.Constraint("Symmetric", 24, 3, 34, 3, -1))
sketch4.addConstraint(Sketcher.Constraint("Symmetric", 23, 3, 35, 3, -1))
sketch4.addConstraint(Sketcher.Constraint("Symmetric", 22, 3, 36, 3, -1))
sketch4.addConstraint(Sketcher.Constraint("Symmetric", 21, 3, 37, 3, -1))
sketch4.addConstraint(Sketcher.Constraint("Symmetric", 20, 3, 38, 3, -1))
sketch4.addConstraint(Sketcher.Constraint("Symmetric", 19, 3, 39, 3, -1))
sketch4.addConstraint(Sketcher.Constraint("Symmetric", 18, 3, 40, 3, -1))
sketch4.addConstraint(Sketcher.Constraint("Symmetric", 17, 3, 41, 3, -1))
sketch4.addConstraint(Sketcher.Constraint("Symmetric", 16, 3, 42, 3, -1))
sketch4.addConstraint(Sketcher.Constraint("Symmetric", 15, 3, 43, 3, -1))
sketch4.addConstraint(Sketcher.Constraint("Symmetric", 14, 3, 44, 3, -1))
sketch4.addConstraint(Sketcher.Constraint("Symmetric", 13, 3, 45, 3, -1))
sketch4.addConstraint(Sketcher.Constraint("Symmetric", 12, 3, 46, 3, -1))
sketch4.addConstraint(Sketcher.Constraint("Symmetric", 11, 3, 47, 3, -1))
sketch4.addConstraint(Sketcher.Constraint("Symmetric", 10, 3, 48, 3, -1))
sketch4.addConstraint(Sketcher.Constraint("Symmetric", 9, 3, 49, 3, -1))
sketch4.addConstraint(Sketcher.Constraint("Symmetric", 8, 3, 50, 3, -1))
sketch4.addConstraint(Sketcher.Constraint("Symmetric", 7, 3, 51, 3, -1))
sketch4.addConstraint(Sketcher.Constraint("Symmetric", 6, 3, 52, 3, -1))
sketch4.addConstraint(Sketcher.Constraint("Symmetric", 5, 3, 53, 3, -1))
sketch4.addConstraint(Sketcher.Constraint("Symmetric", 4, 3, 54, 3, -1))
sketch4.addConstraint(Sketcher.Constraint("Symmetric", 3, 3, 55, 3, -1))
sketch4.addConstraint(Sketcher.Constraint("Symmetric", 2, 3, 56, 3, -1))
sketch4.addConstraint(Sketcher.Constraint("Symmetric", 0, 3, 57, 3, -1))
sketch4.addConstraint(Sketcher.Constraint("Symmetric", 1, 3, 58, 3, -1))
sketch4.addConstraint(Sketcher.Constraint("PointOnObject", 29, 3, -1))
sketch4.addConstraint(Sketcher.Constraint("Vertical", 0, 3, 1, 3))
sketch4.addConstraint(Sketcher.Constraint("Vertical", 1, 3, 2, 3))
sketch4.addConstraint(Sketcher.Constraint("Vertical", 2, 3, 3, 3))
sketch4.addConstraint(Sketcher.Constraint("Vertical", 3, 3, 4, 3))
sketch4.addConstraint(Sketcher.Constraint("Vertical", 4, 3, 5, 3))
sketch4.addConstraint(Sketcher.Constraint("Vertical", 5, 3, 6, 3))
sketch4.addConstraint(Sketcher.Constraint("Vertical", 6, 3, 7, 3))
sketch4.addConstraint(Sketcher.Constraint("Vertical", 7, 3, 8, 3))
sketch4.addConstraint(Sketcher.Constraint("Vertical", 8, 3, 9, 3))
sketch4.addConstraint(Sketcher.Constraint("Vertical", 9, 3, 10, 3))
sketch4.addConstraint(Sketcher.Constraint("Vertical", 10, 3, 11, 3))
sketch4.addConstraint(Sketcher.Constraint("Vertical", 11, 3, 12, 3))
sketch4.addConstraint(Sketcher.Constraint("Vertical", 12, 3, 13, 3))
sketch4.addConstraint(Sketcher.Constraint("Vertical", 13, 3, 14, 3))
sketch4.addConstraint(Sketcher.Constraint("Vertical", 14, 3, 15, 3))
sketch4.addConstraint(Sketcher.Constraint("Vertical", 15, 3, 16, 3))
sketch4.addConstraint(Sketcher.Constraint("Vertical", 16, 3, 17, 3))
sketch4.addConstraint(Sketcher.Constraint("Vertical", 17, 3, 18, 3))
sketch4.addConstraint(Sketcher.Constraint("Vertical", 18, 3, 19, 3))
sketch4.addConstraint(Sketcher.Constraint("Vertical", 19, 3, 20, 3))
sketch4.addConstraint(Sketcher.Constraint("Vertical", 20, 3, 21, 3))
sketch4.addConstraint(Sketcher.Constraint("Vertical", 21, 3, 22, 3))
sketch4.addConstraint(Sketcher.Constraint("Vertical", 22, 3, 23, 3))
sketch4.addConstraint(Sketcher.Constraint("Vertical", 23, 3, 24, 3))
sketch4.addConstraint(Sketcher.Constraint("Vertical", 24, 3, 25, 3))
sketch4.addConstraint(Sketcher.Constraint("Vertical", 25, 3, 26, 3))
sketch4.addConstraint(Sketcher.Constraint("Vertical", 26, 3, 27, 3))
sketch4.addConstraint(Sketcher.Constraint("Vertical", 27, 3, 28, 3))
sketch4.addConstraint(Sketcher.Constraint("Vertical", 28, 3, 29, 3))
sketch4.addConstraint(Sketcher.Constraint("Diameter", 0, Q("0.163 in")))
sketch4.addConstraint(Sketcher.Constraint("DistanceY", -1, 1, 0, 3, Q("28 in")))
sketch4.addConstraint(Sketcher.Constraint("DistanceY", -1, 1, 1, 3, Q("29 in")))
sketch4.addConstraint(Sketcher.Constraint("DistanceY", -1, 1, 2, 3, Q("27 in")))
sketch4.addConstraint(Sketcher.Constraint("DistanceY", -1, 1, 3, 3, Q("26 in")))
sketch4.addConstraint(Sketcher.Constraint("DistanceY", -1, 1, 4, 3, Q("25 in")))
sketch4.addConstraint(Sketcher.Constraint("DistanceY", -1, 1, 5, 3, Q("24 in")))
sketch4.addConstraint(Sketcher.Constraint("DistanceY", -1, 1, 6, 3, Q("23 in")))
sketch4.addConstraint(Sketcher.Constraint("DistanceY", -1, 1, 7, 3, Q("22 in")))
sketch4.addConstraint(Sketcher.Constraint("DistanceY", -1, 1, 8, 3, Q("21 in")))
sketch4.addConstraint(Sketcher.Constraint("DistanceY", -1, 1, 9, 3, Q("20 in")))
sketch4.addConstraint(Sketcher.Constraint("DistanceY", -1, 1, 10, 3, Q("19 in")))
sketch4.addConstraint(Sketcher.Constraint("DistanceY", -1, 1, 11, 3, Q("18 in")))
sketch4.addConstraint(Sketcher.Constraint("DistanceY", -1, 1, 12, 3, Q("17 in")))
sketch4.addConstraint(Sketcher.Constraint("DistanceY", -1, 1, 13, 3, Q("16 in")))
sketch4.addConstraint(Sketcher.Constraint("DistanceY", -1, 1, 14, 3, Q("15 in")))
sketch4.addConstraint(Sketcher.Constraint("DistanceY", -1, 1, 15, 3, Q("14 in")))
sketch4.addConstraint(Sketcher.Constraint("DistanceY", -1, 1, 16, 3, Q("13 in")))
sketch4.addConstraint(Sketcher.Constraint("DistanceY", -1, 1, 17, 3, Q("12 in")))
sketch4.addConstraint(Sketcher.Constraint("DistanceY", -1, 1, 18, 3, Q("11 in")))
sketch4.addConstraint(Sketcher.Constraint("DistanceY", -1, 1, 19, 3, Q("10 in")))
sketch4.addConstraint(Sketcher.Constraint("DistanceY", -1, 1, 20, 3, Q("9 in")))
sketch4.addConstraint(Sketcher.Constraint("DistanceY", -1, 1, 21, 3, Q("8 in")))
sketch4.addConstraint(Sketcher.Constraint("DistanceY", -1, 1, 22, 3, Q("7 in")))
sketch4.addConstraint(Sketcher.Constraint("DistanceY", -1, 1, 23, 3, Q("6 in")))
sketch4.addConstraint(Sketcher.Constraint("DistanceY", -1, 1, 24, 3, Q("5 in")))
sketch4.addConstraint(Sketcher.Constraint("DistanceY", -1, 1, 25, 3, Q("4 in")))
sketch4.addConstraint(Sketcher.Constraint("DistanceY", -1, 1, 26, 3, Q("3 in")))
sketch4.addConstraint(Sketcher.Constraint("DistanceY", -1, 1, 27, 3, Q("2 in")))
sketch4.addConstraint(Sketcher.Constraint("DistanceY", -1, 1, 28, 3, Q("1 in")))
sketch4.addConstraint(Sketcher.Constraint("DistanceX", -1, 1, 0, 3, Q("0.5 in")))
doc.recompute()
hole2 = body.newObject("PartDesign::Hole", "Hole001")
hole2.Profile = sketch4
hole2.ThreadType = "None"
hole2.Diameter = Q("0.163 in")
hole2.DepthType = "Dimension"
hole2.Depth = Q("1 in")
hole2.DrillPoint = "Flat"
hole2.Reversed = True
doc.recompute()

chamfer = body.newObject("PartDesign::Chamfer", "Chamfer")
chamfer.Base = (hole2, edges_at(hole2, [
    (25.4, 1.143, -749.3),
    (1.143, 25.4, 749.3),
    (1.143, 25.4, -749.3),
    (25.4, 1.143, 749.3),
]))
chamfer.Size = Q("0.085 in")
doc.recompute()

fillet = body.newObject("PartDesign::Fillet", "Fillet")
fillet.Base = (chamfer, edges_at(chamfer, [(2.286, 2.286, 0)]))
fillet.Radius = Q("0.032 in")
doc.recompute()

fillet2 = body.newObject("PartDesign::Fillet", "Fillet001")
fillet2.Base = (fillet, edges_at(fillet, [(0, 0, 0)]))
fillet2.Radius = Q("0.122 in")

sketch5 = body.newObject("Sketcher::SketchObject", "Sketch004")
sketch5.AttachmentSupport = (doc.getObject("XY_Plane"), [""])
sketch5.MapMode = "FlatFace"
sketch5.AttachmentOffset = App.Placement(V(0, 0, 29.5 * 25.4), App.Rotation())
sketch5.addGeometry(Part.LineSegment(V(-45.655482, 42.767965, 0), V(-45.655482, -36.570365, 0)), False)
sketch5.addGeometry(Part.LineSegment(V(-45.655482, -36.570365, 0), V(50.227482, -36.570365, 0)), False)
sketch5.addGeometry(Part.LineSegment(V(50.227482, -36.570365, 0), V(50.227482, 42.767965, 0)), False)
sketch5.addGeometry(Part.LineSegment(V(50.227482, 42.767965, 0), V(-45.655482, 42.767965, 0)), False)
sketch5.addConstraint(Sketcher.Constraint("Coincident", 0, 2, 1, 1))
sketch5.addConstraint(Sketcher.Constraint("Coincident", 1, 2, 2, 1))
sketch5.addConstraint(Sketcher.Constraint("Coincident", 2, 2, 3, 1))
sketch5.addConstraint(Sketcher.Constraint("Coincident", 3, 2, 0, 1))
sketch5.addConstraint(Sketcher.Constraint("Vertical", 0))
sketch5.addConstraint(Sketcher.Constraint("Horizontal", 1))
sketch5.addConstraint(Sketcher.Constraint("Vertical", 2))
sketch5.addConstraint(Sketcher.Constraint("Horizontal", 3))
sketch5.addConstraint(Sketcher.Constraint("DistanceY", 0, 2, 0, 1, Q("79.33833 mm")))
sketch5.addConstraint(Sketcher.Constraint("DistanceX", 1, 1, 1, 2, Q("95.882964 mm")))
sketch5.addConstraint(Sketcher.Constraint("DistanceX", 0, 2, -1, 1, Q("45.655482 mm")))
sketch5.addConstraint(Sketcher.Constraint("DistanceY", 0, 2, -1, 1, Q("36.570365 mm")))
pocket2 = body.newObject("PartDesign::Pocket", "Pocket001")
pocket2.Profile = sketch5
pocket2.Length = Q("54 in")

sketch6 = body.newObject("Sketcher::SketchObject", "Sketch005")
sketch6.AttachmentSupport = (doc.getObject("XY_Plane"), [""])
sketch6.MapMode = "FlatFace"
sketch6.AttachmentOffset = App.Placement(V(0, 0, -24.5 * 25.4), App.Rotation())
sketch6.addGeometry(Part.LineSegment(V(-23.876086, 35.087217, 0), V(-23.876086, -31.589518, 0)), False)
sketch6.addGeometry(Part.LineSegment(V(-23.876086, -31.589518, 0), V(27.586436, -31.589518, 0)), False)
sketch6.addGeometry(Part.LineSegment(V(27.586436, -31.589518, 0), V(27.586436, 35.087217, 0)), False)
sketch6.addGeometry(Part.LineSegment(V(27.586436, 35.087217, 0), V(-23.876086, 35.087217, 0)), False)
sketch6.addConstraint(Sketcher.Constraint("Coincident", 0, 2, 1, 1))
sketch6.addConstraint(Sketcher.Constraint("Coincident", 1, 2, 2, 1))
sketch6.addConstraint(Sketcher.Constraint("Coincident", 2, 2, 3, 1))
sketch6.addConstraint(Sketcher.Constraint("Coincident", 3, 2, 0, 1))
sketch6.addConstraint(Sketcher.Constraint("Vertical", 0))
sketch6.addConstraint(Sketcher.Constraint("Horizontal", 1))
sketch6.addConstraint(Sketcher.Constraint("Vertical", 2))
sketch6.addConstraint(Sketcher.Constraint("Horizontal", 3))
sketch6.addConstraint(Sketcher.Constraint("DistanceX", 1, 1, 1, 2, Q("51.462523 mm")))
sketch6.addConstraint(Sketcher.Constraint("DistanceY", 0, 2, 0, 1, Q("66.676735 mm")))
sketch6.addConstraint(Sketcher.Constraint("DistanceX", 0, 2, -1, 1, Q("23.876086 mm")))
sketch6.addConstraint(Sketcher.Constraint("DistanceY", 0, 2, -1, 1, Q("31.589518 mm")))
pocket3 = body.newObject("PartDesign::Pocket", "Pocket002")
pocket3.Profile = sketch6
pocket3.Length = Q("0.09 in")

doc.recompute()
